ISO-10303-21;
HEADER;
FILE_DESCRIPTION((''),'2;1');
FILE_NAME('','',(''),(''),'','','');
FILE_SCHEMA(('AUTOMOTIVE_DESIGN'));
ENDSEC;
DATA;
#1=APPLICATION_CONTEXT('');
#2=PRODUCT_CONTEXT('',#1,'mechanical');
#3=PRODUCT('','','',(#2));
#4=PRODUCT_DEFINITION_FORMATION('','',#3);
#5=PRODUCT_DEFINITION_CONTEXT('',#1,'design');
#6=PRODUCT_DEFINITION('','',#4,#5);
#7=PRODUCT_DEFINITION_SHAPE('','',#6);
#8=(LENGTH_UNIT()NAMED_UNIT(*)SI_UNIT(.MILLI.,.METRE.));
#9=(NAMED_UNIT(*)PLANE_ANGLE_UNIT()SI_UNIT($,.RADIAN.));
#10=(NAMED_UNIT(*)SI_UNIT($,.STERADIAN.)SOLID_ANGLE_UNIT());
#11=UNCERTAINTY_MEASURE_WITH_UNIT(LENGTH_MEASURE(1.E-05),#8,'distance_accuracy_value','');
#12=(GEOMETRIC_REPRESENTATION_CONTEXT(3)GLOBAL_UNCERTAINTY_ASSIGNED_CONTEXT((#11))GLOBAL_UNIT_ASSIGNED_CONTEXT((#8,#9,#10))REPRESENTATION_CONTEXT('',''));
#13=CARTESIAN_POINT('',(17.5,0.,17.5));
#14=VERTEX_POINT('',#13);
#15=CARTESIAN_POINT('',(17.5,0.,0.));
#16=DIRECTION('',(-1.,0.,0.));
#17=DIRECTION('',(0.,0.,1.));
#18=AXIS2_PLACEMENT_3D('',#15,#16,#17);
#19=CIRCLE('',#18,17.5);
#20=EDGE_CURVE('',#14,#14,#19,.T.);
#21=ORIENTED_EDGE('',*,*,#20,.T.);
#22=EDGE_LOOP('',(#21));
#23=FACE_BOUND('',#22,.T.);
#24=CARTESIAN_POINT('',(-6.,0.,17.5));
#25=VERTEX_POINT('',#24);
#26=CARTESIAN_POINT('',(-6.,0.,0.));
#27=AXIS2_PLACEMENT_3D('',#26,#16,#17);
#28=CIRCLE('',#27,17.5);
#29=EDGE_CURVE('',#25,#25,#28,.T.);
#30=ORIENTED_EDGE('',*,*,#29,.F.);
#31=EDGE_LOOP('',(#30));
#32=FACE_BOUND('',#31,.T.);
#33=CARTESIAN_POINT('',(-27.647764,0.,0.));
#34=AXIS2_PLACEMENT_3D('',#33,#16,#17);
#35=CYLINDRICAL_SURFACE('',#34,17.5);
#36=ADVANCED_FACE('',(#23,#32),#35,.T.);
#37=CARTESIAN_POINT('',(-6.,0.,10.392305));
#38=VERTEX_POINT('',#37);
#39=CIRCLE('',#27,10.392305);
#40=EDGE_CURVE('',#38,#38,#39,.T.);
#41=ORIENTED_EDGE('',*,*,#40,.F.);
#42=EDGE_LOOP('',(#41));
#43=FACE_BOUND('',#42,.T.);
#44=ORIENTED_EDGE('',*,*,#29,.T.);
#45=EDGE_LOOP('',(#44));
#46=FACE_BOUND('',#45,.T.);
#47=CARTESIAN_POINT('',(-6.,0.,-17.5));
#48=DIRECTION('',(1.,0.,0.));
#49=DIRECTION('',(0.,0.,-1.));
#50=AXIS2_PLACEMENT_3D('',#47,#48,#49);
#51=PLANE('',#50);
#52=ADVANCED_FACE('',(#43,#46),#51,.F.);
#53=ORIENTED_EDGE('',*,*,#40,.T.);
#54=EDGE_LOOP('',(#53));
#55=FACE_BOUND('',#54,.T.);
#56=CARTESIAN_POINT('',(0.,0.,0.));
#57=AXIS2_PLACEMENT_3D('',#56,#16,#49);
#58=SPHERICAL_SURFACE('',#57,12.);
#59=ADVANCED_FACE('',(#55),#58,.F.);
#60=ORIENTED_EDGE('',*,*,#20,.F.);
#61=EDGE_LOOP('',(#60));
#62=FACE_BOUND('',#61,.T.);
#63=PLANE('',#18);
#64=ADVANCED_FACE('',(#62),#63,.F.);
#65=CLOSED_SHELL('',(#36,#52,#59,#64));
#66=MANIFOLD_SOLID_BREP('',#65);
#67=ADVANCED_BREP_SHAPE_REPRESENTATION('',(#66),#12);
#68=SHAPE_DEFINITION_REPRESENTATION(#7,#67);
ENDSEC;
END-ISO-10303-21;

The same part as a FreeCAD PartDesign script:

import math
import FreeCAD as App
import Part
import Sketcher
Q = App.Units.Quantity

doc = App.newDocument("Part")
body = doc.addObject("PartDesign::Body", "Body")

sketch1 = body.newObject("Sketcher::SketchObject", "Sketch")
sketch1.AttachmentSupport = (doc.getObject("XZ_Plane"), [""])
sketch1.MapMode = "FlatFace"
sketch1.addGeometry(Part.LineSegment(App.Vector(18, -18, 0), App.Vector(-6, -18, 0)), False)
sketch1.addGeometry(Part.LineSegment(App.Vector(-6, -18, 0), App.Vector(-6, -10, 0)), False)
sketch1.addGeometry(Part.ArcOfCircle(Part.Circle(App.Vector(0, 0, 0), App.Vector(0, 0, 1), 12), math.radians(-120), math.radians(0)), False)
sketch1.addGeometry(Part.LineSegment(App.Vector(12, 0, 0), App.Vector(18, 0, 0)), False)
sketch1.addGeometry(Part.LineSegment(App.Vector(18, 0, 0), App.Vector(18, -18, 0)), False)
sketch1.addConstraint(Sketcher.Constraint("Coincident", 0, 2, 1, 1))
sketch1.addConstraint(Sketcher.Constraint("Coincident", 1, 2, 2, 1))
sketch1.addConstraint(Sketcher.Constraint("Coincident", 2, 2, 3, 1))
sketch1.addConstraint(Sketcher.Constraint("Coincident", 3, 2, 4, 1))
sketch1.addConstraint(Sketcher.Constraint("Coincident", 4, 2, 0, 1))
sketch1.addConstraint(Sketcher.Constraint("Horizontal", 0))
sketch1.addConstraint(Sketcher.Constraint("Vertical", 1))
sketch1.addConstraint(Sketcher.Constraint("Horizontal", 3))
sketch1.addConstraint(Sketcher.Constraint("Vertical", 4))
sketch1.addConstraint(Sketcher.Constraint("Coincident", 2, 3, -1, 1))
sketch1.addConstraint(Sketcher.Constraint("PointOnObject", 2, 2, -1))
sketch1.addConstraint(Sketcher.Constraint("Radius", 2, Q("12 mm")))
sketch1.addConstraint(Sketcher.Constraint("DistanceX", 0, 2, 0, 1, Q("23.5 mm")))
sketch1.addConstraint(Sketcher.Constraint("DistanceX", 3, 1, 3, 2, Q("5.5 mm")))
sketch1.addConstraint(Sketcher.Constraint("DistanceY", 4, 2, 4, 1, Q("17.5 mm")))
revolution = body.newObject("PartDesign::Revolution", "Revolution")
revolution.Profile = sketch1
revolution.ReferenceAxis = (sketch1, ["H_Axis"])
revolution.Angle = 360

doc.recompute()
